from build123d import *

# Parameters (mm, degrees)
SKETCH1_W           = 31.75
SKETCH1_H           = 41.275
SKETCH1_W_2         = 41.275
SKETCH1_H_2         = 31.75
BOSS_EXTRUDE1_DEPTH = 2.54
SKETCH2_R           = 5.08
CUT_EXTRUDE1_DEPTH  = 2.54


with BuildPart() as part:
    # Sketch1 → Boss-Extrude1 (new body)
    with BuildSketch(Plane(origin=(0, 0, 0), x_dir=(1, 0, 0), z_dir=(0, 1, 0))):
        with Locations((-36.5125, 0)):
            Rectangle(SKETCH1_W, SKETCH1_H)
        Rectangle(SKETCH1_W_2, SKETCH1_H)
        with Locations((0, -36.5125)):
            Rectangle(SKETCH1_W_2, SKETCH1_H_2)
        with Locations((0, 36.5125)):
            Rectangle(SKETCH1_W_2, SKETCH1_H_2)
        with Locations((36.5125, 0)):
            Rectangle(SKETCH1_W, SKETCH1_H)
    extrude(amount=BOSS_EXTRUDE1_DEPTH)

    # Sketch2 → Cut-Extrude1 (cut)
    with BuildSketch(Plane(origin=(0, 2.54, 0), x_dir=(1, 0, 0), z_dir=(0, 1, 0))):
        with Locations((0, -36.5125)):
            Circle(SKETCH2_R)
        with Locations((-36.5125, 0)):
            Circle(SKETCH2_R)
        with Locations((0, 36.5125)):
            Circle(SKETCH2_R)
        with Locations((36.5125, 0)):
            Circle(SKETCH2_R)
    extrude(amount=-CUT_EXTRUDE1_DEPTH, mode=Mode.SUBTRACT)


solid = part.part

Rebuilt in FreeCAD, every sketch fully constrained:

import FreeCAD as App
import Part
import Sketcher
Q = App.Units.Quantity

doc = App.newDocument("Part")
params = doc.addObject("Spreadsheet::Sheet", "Params")
for row, (alias, value) in enumerate([
    ("sketch1_width", "1.25 in"),
    ("sketch1_width2", "1.625 in"),
    ("pad1_length", "0.1 in"),
    ("sketch2_diameter", "0.4 in"),
    ("pocket1_length", "0.1 in"),
], start=1):
    params.set(f"A{row}", alias)
    params.set(f"B{row}", "=" + value)
    params.setAlias(f"B{row}", alias)

body = doc.addObject("PartDesign::Body", "Body")

# Sketch on XZ plane
sketch1 = body.newObject("Sketcher::SketchObject", "Sketch")
sketch1.AttachmentSupport = (doc.getObject("XZ_Plane"), [""])
sketch1.MapMode = "FlatFace"
sketch1.addGeometry([
    Part.LineSegment(App.Vector(-52, -21, 0), App.Vector(-52, 21, 0)),  # 0
    Part.LineSegment(App.Vector(-52, 21, 0), App.Vector(-21, 21, 0)),  # 1
    Part.LineSegment(App.Vector(-21, 21, 0), App.Vector(-21, 52, 0)),  # 2
    Part.LineSegment(App.Vector(-21, 52, 0), App.Vector(21, 52, 0)),  # 3
    Part.LineSegment(App.Vector(21, 52, 0), App.Vector(21, 21, 0)),  # 4
    Part.LineSegment(App.Vector(21, 21, 0), App.Vector(52, 21, 0)),  # 5
    Part.LineSegment(App.Vector(52, 21, 0), App.Vector(52, -21, 0)),  # 6
    Part.LineSegment(App.Vector(52, -21, 0), App.Vector(21, -21, 0)),  # 7
    Part.LineSegment(App.Vector(21, -21, 0), App.Vector(21, -52, 0)),  # 8
    Part.LineSegment(App.Vector(21, -52, 0), App.Vector(-21, -52, 0)),  # 9
    Part.LineSegment(App.Vector(-21, -52, 0), App.Vector(-21, -21, 0)),  # 10
    Part.LineSegment(App.Vector(-21, -21, 0), App.Vector(-52, -21, 0)),  # 11
], False)
sketch1.addConstraint([
    Sketcher.Constraint("Coincident", 0, 2, 1, 1),
    Sketcher.Constraint("Coincident", 1, 2, 2, 1),
    Sketcher.Constraint("Coincident", 2, 2, 3, 1),
    Sketcher.Constraint("Coincident", 3, 2, 4, 1),
    Sketcher.Constraint("Coincident", 4, 2, 5, 1),
    Sketcher.Constraint("Coincident", 5, 2, 6, 1),
    Sketcher.Constraint("Coincident", 6, 2, 7, 1),
    Sketcher.Constraint("Coincident", 7, 2, 8, 1),
    Sketcher.Constraint("Coincident", 8, 2, 9, 1),
    Sketcher.Constraint("Coincident", 9, 2, 10, 1),
    Sketcher.Constraint("Coincident", 10, 2, 11, 1),
    Sketcher.Constraint("Coincident", 11, 2, 0, 1),
    Sketcher.Constraint("Vertical", 0),
    Sketcher.Constraint("Horizontal", 1),
    Sketcher.Constraint("Vertical", 2),
    Sketcher.Constraint("Horizontal", 3),
    Sketcher.Constraint("Vertical", 4),
    Sketcher.Constraint("Horizontal", 5),
    Sketcher.Constraint("Vertical", 6),
    Sketcher.Constraint("Horizontal", 7),
    Sketcher.Constraint("Vertical", 8),
    Sketcher.Constraint("Horizontal", 9),
    Sketcher.Constraint("Vertical", 10),
    Sketcher.Constraint("Horizontal", 11),
    Sketcher.Constraint("Symmetric", 0, 2, 6, 2, -1, 1),
    Sketcher.Constraint("Symmetric", 2, 2, 8, 2, -1, 1),
    Sketcher.Constraint("Symmetric", 4, 2, 10, 2, -1, 1),
    Sketcher.Constraint("Symmetric", 1, 2, 4, 2, -2),
    Sketcher.Constraint("Equal", 9, 0),
    Sketcher.Constraint("Equal", 11, 2),
    Sketcher.Constraint("DistanceX", 1, 1, 1, 2, Q("1.25 in")),
    Sketcher.Constraint("DistanceX", 3, 1, 3, 2, Q("1.625 in")),
])
sketch1.setExpression("Constraints[30]", "Params.sketch1_width")
sketch1.setExpression("Constraints[31]", "Params.sketch1_width2")
pad1 = body.newObject("PartDesign::Pad", "Pad")
pad1.Profile = sketch1
pad1.setExpression("Length", "Params.pad1_length")
pad1.Reversed = True

# Sketch on XZ plane
sketch2 = body.newObject("Sketcher::SketchObject", "Sketch001")
sketch2.AttachmentSupport = (doc.getObject("XZ_Plane"), [""])
sketch2.MapMode = "FlatFace"
sketch2.AttachmentOffset = App.Placement(App.Vector(0, 0, -0.1 * 25.4), App.Rotation())
sketch2.addGeometry([
    Part.Circle(App.Vector(0, 37, 0), App.Vector(0, 0, 1), 5),
    Part.Circle(App.Vector(-37, 0, 0), App.Vector(0, 0, 1), 5),
    Part.Circle(App.Vector(0, -37, 0), App.Vector(0, 0, 1), 5),
    Part.Circle(App.Vector(37, 0, 0), App.Vector(0, 0, 1), 5),
], False)
sketch2.addConstraint([
    Sketcher.Constraint("Equal", 0, 1),
    Sketcher.Constraint("Equal", 1, 2),
    Sketcher.Constraint("Equal", 2, 3),
    Sketcher.Constraint("Symmetric", 0, 3, 2, 3, -1, 1),
    Sketcher.Constraint("Symmetric", 1, 3, 3, 3, -1, 1),
    Sketcher.Constraint("PointOnObject", 0, 3, -2),
    Sketcher.Constraint("PointOnObject", 1, 3, -1),
    Sketcher.Constraint("Diameter", 0, Q("0.4 in")),
    Sketcher.Constraint("DistanceY", -1, 1, 0, 3, Q("1.4375 in")),
    Sketcher.Constraint("DistanceX", 1, 3, -1, 1, Q("1.4375 in")),
])
sketch2.setExpression("Constraints[7]", "Params.sketch2_diameter")
pocket1 = body.newObject("PartDesign::Pocket", "Pocket")
pocket1.Profile = sketch2
pocket1.setExpression("Length", "Params.pocket1_length")
pocket1.Reversed = True

doc.recompute()
